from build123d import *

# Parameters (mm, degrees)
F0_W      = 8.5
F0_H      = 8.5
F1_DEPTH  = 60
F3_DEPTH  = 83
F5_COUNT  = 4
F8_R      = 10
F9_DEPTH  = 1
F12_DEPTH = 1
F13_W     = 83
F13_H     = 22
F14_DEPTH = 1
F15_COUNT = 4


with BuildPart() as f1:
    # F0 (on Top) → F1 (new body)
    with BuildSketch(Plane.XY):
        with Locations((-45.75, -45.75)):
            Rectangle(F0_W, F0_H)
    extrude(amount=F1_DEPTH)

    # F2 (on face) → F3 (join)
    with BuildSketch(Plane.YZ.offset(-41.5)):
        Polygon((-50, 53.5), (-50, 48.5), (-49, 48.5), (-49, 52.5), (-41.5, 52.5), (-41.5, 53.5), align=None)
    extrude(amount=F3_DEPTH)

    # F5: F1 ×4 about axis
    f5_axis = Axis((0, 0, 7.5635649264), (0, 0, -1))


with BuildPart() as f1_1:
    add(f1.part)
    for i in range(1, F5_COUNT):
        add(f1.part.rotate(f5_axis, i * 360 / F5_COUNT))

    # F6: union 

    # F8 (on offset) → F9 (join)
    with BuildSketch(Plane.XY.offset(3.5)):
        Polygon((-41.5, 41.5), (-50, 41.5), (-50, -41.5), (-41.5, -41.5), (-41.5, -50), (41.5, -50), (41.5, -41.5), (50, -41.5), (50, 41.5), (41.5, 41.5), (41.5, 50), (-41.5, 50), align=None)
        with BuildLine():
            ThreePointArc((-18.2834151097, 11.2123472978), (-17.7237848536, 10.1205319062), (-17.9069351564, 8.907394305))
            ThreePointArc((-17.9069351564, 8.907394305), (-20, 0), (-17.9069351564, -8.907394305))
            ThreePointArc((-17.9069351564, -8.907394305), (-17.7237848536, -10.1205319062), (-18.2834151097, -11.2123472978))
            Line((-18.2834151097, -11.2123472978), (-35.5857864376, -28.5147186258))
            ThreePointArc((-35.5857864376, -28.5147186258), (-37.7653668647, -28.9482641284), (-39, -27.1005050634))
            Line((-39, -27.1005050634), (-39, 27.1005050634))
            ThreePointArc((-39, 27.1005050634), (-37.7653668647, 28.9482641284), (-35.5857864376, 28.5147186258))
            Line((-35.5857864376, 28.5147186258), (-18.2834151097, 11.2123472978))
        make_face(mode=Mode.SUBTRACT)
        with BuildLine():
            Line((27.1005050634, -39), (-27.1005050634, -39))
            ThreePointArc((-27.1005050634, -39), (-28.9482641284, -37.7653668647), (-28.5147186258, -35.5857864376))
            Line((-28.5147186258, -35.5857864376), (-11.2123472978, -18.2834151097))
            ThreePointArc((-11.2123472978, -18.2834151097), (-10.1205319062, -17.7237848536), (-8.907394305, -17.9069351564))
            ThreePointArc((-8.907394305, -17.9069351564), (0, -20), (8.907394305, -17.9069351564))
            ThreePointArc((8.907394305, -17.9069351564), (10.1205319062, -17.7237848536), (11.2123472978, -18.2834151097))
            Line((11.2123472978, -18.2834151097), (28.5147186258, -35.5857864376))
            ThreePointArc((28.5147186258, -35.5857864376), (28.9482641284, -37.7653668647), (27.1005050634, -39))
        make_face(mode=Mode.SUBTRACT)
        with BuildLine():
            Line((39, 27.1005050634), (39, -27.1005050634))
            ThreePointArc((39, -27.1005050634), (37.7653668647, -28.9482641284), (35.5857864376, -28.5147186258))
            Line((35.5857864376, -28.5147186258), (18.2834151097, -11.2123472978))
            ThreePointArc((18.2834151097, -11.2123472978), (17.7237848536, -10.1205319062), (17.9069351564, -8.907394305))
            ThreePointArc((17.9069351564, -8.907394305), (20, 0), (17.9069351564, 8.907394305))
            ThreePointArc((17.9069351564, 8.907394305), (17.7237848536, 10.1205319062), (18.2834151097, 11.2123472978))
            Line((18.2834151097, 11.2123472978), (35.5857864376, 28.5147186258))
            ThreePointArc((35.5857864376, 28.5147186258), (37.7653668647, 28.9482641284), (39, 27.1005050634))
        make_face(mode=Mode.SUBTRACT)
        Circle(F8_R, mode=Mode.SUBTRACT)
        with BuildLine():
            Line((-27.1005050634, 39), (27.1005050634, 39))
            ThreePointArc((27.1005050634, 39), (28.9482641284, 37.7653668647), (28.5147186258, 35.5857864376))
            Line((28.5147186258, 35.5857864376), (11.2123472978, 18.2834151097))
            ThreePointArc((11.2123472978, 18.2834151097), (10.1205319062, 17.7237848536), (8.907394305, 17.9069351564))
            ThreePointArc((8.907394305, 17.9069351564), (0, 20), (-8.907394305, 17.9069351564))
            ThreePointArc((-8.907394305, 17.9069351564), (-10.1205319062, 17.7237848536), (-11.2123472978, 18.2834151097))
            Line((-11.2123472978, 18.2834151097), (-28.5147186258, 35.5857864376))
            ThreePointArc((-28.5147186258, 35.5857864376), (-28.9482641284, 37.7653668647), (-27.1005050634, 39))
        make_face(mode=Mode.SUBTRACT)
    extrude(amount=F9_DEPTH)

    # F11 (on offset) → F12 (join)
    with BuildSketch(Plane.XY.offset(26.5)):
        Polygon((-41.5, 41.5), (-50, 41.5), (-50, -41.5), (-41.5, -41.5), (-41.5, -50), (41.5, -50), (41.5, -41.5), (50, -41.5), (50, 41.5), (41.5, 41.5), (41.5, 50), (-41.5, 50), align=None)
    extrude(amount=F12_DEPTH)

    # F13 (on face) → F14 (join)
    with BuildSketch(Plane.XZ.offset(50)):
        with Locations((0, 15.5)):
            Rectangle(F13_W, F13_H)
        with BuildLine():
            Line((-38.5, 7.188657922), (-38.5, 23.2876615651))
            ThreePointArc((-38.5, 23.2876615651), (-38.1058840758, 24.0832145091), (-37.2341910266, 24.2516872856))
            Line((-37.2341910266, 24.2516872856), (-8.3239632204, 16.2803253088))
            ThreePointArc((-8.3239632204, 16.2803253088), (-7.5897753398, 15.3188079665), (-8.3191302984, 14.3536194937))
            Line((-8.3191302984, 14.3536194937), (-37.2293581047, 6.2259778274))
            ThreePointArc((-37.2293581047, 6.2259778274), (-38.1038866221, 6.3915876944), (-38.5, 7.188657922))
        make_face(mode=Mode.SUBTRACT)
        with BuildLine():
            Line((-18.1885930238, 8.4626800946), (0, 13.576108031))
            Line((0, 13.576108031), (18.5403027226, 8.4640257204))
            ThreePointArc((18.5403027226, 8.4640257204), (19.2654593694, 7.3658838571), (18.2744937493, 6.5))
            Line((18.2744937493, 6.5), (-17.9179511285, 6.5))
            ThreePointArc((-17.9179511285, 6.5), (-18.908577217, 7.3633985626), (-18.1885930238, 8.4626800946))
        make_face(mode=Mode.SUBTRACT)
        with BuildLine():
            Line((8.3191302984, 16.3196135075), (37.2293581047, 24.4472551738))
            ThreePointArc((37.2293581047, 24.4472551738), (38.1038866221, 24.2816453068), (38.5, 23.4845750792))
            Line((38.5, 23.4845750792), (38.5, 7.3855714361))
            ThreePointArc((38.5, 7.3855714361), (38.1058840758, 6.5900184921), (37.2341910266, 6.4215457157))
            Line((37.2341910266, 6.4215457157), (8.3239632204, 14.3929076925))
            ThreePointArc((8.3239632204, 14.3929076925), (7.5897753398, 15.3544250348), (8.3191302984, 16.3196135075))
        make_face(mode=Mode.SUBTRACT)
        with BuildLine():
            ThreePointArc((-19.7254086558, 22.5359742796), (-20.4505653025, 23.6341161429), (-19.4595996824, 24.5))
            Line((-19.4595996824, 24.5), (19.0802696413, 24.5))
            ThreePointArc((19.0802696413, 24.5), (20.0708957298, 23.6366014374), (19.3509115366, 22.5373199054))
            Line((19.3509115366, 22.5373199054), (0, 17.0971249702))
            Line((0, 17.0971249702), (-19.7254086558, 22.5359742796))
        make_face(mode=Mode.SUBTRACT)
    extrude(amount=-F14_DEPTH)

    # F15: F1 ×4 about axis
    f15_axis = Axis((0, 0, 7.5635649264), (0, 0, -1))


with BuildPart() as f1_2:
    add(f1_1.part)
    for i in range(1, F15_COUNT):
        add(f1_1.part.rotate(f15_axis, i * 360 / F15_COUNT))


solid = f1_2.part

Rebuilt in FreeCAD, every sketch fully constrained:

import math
import FreeCAD as App
import Part
import Sketcher
from FreeCAD import Vector
Q = App.Units.Quantity


def add_polygon(sketch, points):
    """Adds a closed chain of lines whose ends are joined by coincident constraints."""
    first, n = sketch.GeometryCount, len(points)
    for a, b in zip(points, points[1:] + points[:1]):
        sketch.addGeometry(Part.LineSegment(App.Vector(*a, 0), App.Vector(*b, 0)), False)
    for i in range(n):
        sketch.addConstraint(Sketcher.Constraint("Coincident", first + i, 2, first + (i + 1) % n, 1))

doc = App.newDocument("Part")
body = doc.addObject("PartDesign::Body", "Body")

sketch1 = doc.addObject("Sketcher::SketchObject", "Sketch")
body.addObject(sketch1)
sketch1.AttachmentSupport = (doc.XY_Plane, [""])
sketch1.MapMode = "FlatFace"
add_polygon(sketch1, [(-50, -41.5), (-50, -50), (-41.5, -50), (-41.5, -41.5)])
sketch1.addConstraint(Sketcher.Constraint("Vertical", 0))
sketch1.addConstraint(Sketcher.Constraint("Horizontal", 1))
sketch1.addConstraint(Sketcher.Constraint("Vertical", 2))
sketch1.addConstraint(Sketcher.Constraint("Horizontal", 3))
sketch1.addConstraint(Sketcher.Constraint("Equal", 3, 0))
sketch1.addConstraint(Sketcher.Constraint("DistanceX", 1, 1, 1, 2, Q("8.5 mm")))
sketch1.addConstraint(Sketcher.Constraint("DistanceX", 0, 2, -1, 1, Q("50 mm")))
sketch1.addConstraint(Sketcher.Constraint("DistanceY", 0, 2, -1, 1, Q("50 mm")))
pad1 = doc.addObject("PartDesign::Pad", "Pad")
body.addObject(pad1)
pad1.Profile = sketch1
pad1.Length = 60

sketch2 = doc.addObject("Sketcher::SketchObject", "Sketch001")
body.addObject(sketch2)
sketch2.AttachmentSupport = (doc.YZ_Plane, [""])
sketch2.MapMode = "FlatFace"
sketch2.AttachmentOffset = App.Placement(Vector(0, 0, -41.5), App.Rotation())
add_polygon(sketch2, [(-50, 53.5), (-50, 48.5), (-49, 48.5), (-49, 52.5), (-41.5, 52.5), (-41.5, 53.5)])
sketch2.addConstraint(Sketcher.Constraint("Vertical", 0))
sketch2.addConstraint(Sketcher.Constraint("Horizontal", 1))
sketch2.addConstraint(Sketcher.Constraint("Vertical", 2))
sketch2.addConstraint(Sketcher.Constraint("Horizontal", 3))
sketch2.addConstraint(Sketcher.Constraint("Vertical", 4))
sketch2.addConstraint(Sketcher.Constraint("Horizontal", 5))
sketch2.addConstraint(Sketcher.Constraint("Equal", 1, 4))
sketch2.addConstraint(Sketcher.Constraint("DistanceX", 1, 1, 1, 2, Q("1 mm")))
sketch2.addConstraint(Sketcher.Constraint("DistanceY", 0, 2, 0, 1, Q("5 mm")))
sketch2.addConstraint(Sketcher.Constraint("DistanceX", 3, 1, 3, 2, Q("7.5 mm")))
sketch2.addConstraint(Sketcher.Constraint("DistanceX", 0, 2, -1, 1, Q("50 mm")))
sketch2.addConstraint(Sketcher.Constraint("DistanceY", -1, 1, 0, 2, Q("48.5 mm")))
pad2 = doc.addObject("PartDesign::Pad", "Pad001")
body.addObject(pad2)
pad2.Profile = sketch2
pad2.Length = 83
body2 = doc.addObject("PartDesign::Body", "Body001")
doc.recompute()

body2.BaseFeature = body
doc.recompute()

body3 = doc.addObject("PartDesign::Body", "Body002")
body3.BaseFeature = body
body3.Placement = App.Placement(Vector(0, 0, 0), App.Rotation(Vector(0, 0, -1), 90))
boolean = doc.addObject("PartDesign::Boolean", "Boolean")
body2.addObject(boolean)
boolean.Type = "Fuse"
boolean.addObjects([body3])
doc.recompute()

body4 = doc.addObject("PartDesign::Body", "Body003")
body4.BaseFeature = body
body4.Placement = App.Placement(Vector(0, 0, 0), App.Rotation(Vector(0, 0, -1), 180))
boolean2 = doc.addObject("PartDesign::Boolean", "Boolean001")
body2.addObject(boolean2)
boolean2.Type = "Fuse"
boolean2.addObjects([body4])
doc.recompute()

body.Placement = App.Placement(Vector(0, 0, 0), App.Rotation(Vector(0, 0, -1), 270))
boolean3 = doc.addObject("PartDesign::Boolean", "Boolean002")
body2.addObject(boolean3)
boolean3.Type = "Fuse"
boolean3.addObjects([body])

sketch3 = doc.addObject("Sketcher::SketchObject", "Sketch002")
body2.addObject(sketch3)
sketch3.AttachmentSupport = (doc.getObject("XY_Plane001"), [""])
sketch3.MapMode = "FlatFace"
sketch3.AttachmentOffset = App.Placement(Vector(0, 0, 3.5), App.Rotation())
add_polygon(sketch3, [(-41.5, 41.5), (-50, 41.5), (-50, -41.5), (-41.5, -41.5), (-41.5, -50), (41.5, -50), (41.5, -41.5), (50, -41.5), (50, 41.5), (41.5, 41.5), (41.5, 50), (-41.5, 50)])
sketch3.addGeometry(Part.ArcOfCircle(Part.Circle(Vector(27.100505, -37, 0), Vector(0, 0, 1), 2), math.radians(-90), math.radians(45)), False)
sketch3.addGeometry(Part.LineSegment(Vector(27.100505, -39, 0), Vector(-27.100505, -39, 0)), False)
sketch3.addGeometry(Part.ArcOfCircle(Part.Circle(Vector(-27.100505, -37, 0), Vector(0, 0, 1), 2), math.radians(135), math.radians(270)), False)
sketch3.addGeometry(Part.LineSegment(Vector(-28.514719, -35.585786, 0), Vector(-11.212347, -18.283415, 0)), False)
sketch3.addGeometry(Part.ArcOfCircle(Part.Circle(Vector(-9.798134, -19.697629, 0), Vector(0, 0, 1), 2), math.radians(63.553005), math.radians(135)), False)
sketch3.addGeometry(Part.ArcOfCircle(Part.Circle(Vector(0, 0, 0), Vector(0, 0, 1), 20), math.radians(-116.446995), math.radians(-63.553005)), False)
sketch3.addGeometry(Part.ArcOfCircle(Part.Circle(Vector(9.798134, -19.697629, 0), Vector(0, 0, 1), 2), math.radians(45), math.radians(116.446995)), False)
sketch3.addGeometry(Part.LineSegment(Vector(11.212347, -18.283415, 0), Vector(28.514719, -35.585786, 0)), False)
sketch3.addGeometry(Part.LineSegment(Vector(-35.585786, 28.514719, 0), Vector(-18.283415, 11.212347, 0)), False)
sketch3.addGeometry(Part.ArcOfCircle(Part.Circle(Vector(-19.697629, 9.798134, 0), Vector(0, 0, 1), 2), math.radians(-26.446995), math.radians(45)), False)
sketch3.addGeometry(Part.ArcOfCircle(Part.Circle(Vector(0, 0, 0), Vector(0, 0, 1), 20), math.radians(153.553005), math.radians(206.446995)), False)
sketch3.addGeometry(Part.ArcOfCircle(Part.Circle(Vector(-19.697629, -9.798134, 0), Vector(0, 0, 1), 2), math.radians(-45), math.radians(26.446995)), False)
sketch3.addGeometry(Part.LineSegment(Vector(-18.283415, -11.212347, 0), Vector(-35.585786, -28.514719, 0)), False)
sketch3.addGeometry(Part.ArcOfCircle(Part.Circle(Vector(-37, -27.100505, 0), Vector(0, 0, 1), 2), math.radians(180), math.radians(315)), False)
sketch3.addGeometry(Part.LineSegment(Vector(-39, -27.100505, 0), Vector(-39, 27.100505, 0)), False)
sketch3.addGeometry(Part.ArcOfCircle(Part.Circle(Vector(-37, 27.100505, 0), Vector(0, 0, 1), 2), math.radians(45), math.radians(180)), False)
sketch3.addGeometry(Part.Circle(Vector(0, 0, 0), Vector(0, 0, 1), 10), False)
sketch3.addGeometry(Part.ArcOfCircle(Part.Circle(Vector(37, 27.100505, 0), Vector(0, 0, 1), 2), math.radians(0), math.radians(135)), False)
sketch3.addGeometry(Part.LineSegment(Vector(39, 27.100505, 0), Vector(39, -27.100505, 0)), False)
sketch3.addGeometry(Part.ArcOfCircle(Part.Circle(Vector(37, -27.100505, 0), Vector(0, 0, 1), 2), math.radians(-135), math.radians(0)), False)
sketch3.addGeometry(Part.LineSegment(Vector(35.585786, -28.514719, 0), Vector(18.283415, -11.212347, 0)), False)
sketch3.addGeometry(Part.ArcOfCircle(Part.Circle(Vector(19.697629, -9.798134, 0), Vector(0, 0, 1), 2), math.radians(153.553005), math.radians(225)), False)
sketch3.addGeometry(Part.ArcOfCircle(Part.Circle(Vector(0, 0, 0), Vector(0, 0, 1), 20), math.radians(-26.446995), math.radians(26.446995)), False)
sketch3.addGeometry(Part.ArcOfCircle(Part.Circle(Vector(19.697629, 9.798134, 0), Vector(0, 0, 1), 2), math.radians(135), math.radians(206.446995)), False)
sketch3.addGeometry(Part.LineSegment(Vector(18.283415, 11.212347, 0), Vector(35.585786, 28.514719, 0)), False)
sketch3.addGeometry(Part.ArcOfCircle(Part.Circle(Vector(-27.100505, 37, 0), Vector(0, 0, 1), 2), math.radians(90), math.radians(225)), False)
sketch3.addGeometry(Part.LineSegment(Vector(-27.100505, 39, 0), Vector(27.100505, 39, 0)), False)
sketch3.addGeometry(Part.ArcOfCircle(Part.Circle(Vector(27.100505, 37, 0), Vector(0, 0, 1), 2), math.radians(-45), math.radians(90)), False)
sketch3.addGeometry(Part.LineSegment(Vector(28.514719, 35.585786, 0), Vector(11.212347, 18.283415, 0)), False)
sketch3.addGeometry(Part.ArcOfCircle(Part.Circle(Vector(9.798134, 19.697629, 0), Vector(0, 0, 1), 2), math.radians(-116.446995), math.radians(-45)), False)
sketch3.addGeometry(Part.ArcOfCircle(Part.Circle(Vector(0, 0, 0), Vector(0, 0, 1), 20), math.radians(63.553005), math.radians(116.446995)), False)
sketch3.addGeometry(Part.ArcOfCircle(Part.Circle(Vector(-9.798134, 19.697629, 0), Vector(0, 0, 1), 2), math.radians(-135), math.radians(-63.553005)), False)
sketch3.addGeometry(Part.LineSegment(Vector(-11.212347, 18.283415, 0), Vector(-28.514719, 35.585786, 0)), False)
sketch3.addConstraint(Sketcher.Constraint("Tangent", 12, 1, 13, 1))
sketch3.addConstraint(Sketcher.Constraint("Tangent", 13, 2, 14, 2))
sketch3.addConstraint(Sketcher.Constraint("Tangent", 14, 1, 15, 1))
sketch3.addConstraint(Sketcher.Constraint("Tangent", 15, 2, 16, 2))
sketch3.addConstraint(Sketcher.Constraint("Tangent", 16, 1, 17, 1))
sketch3.addConstraint(Sketcher.Constraint("Tangent", 17, 2, 18, 2))
sketch3.addConstraint(Sketcher.Constraint("Tangent", 18, 1, 19, 1))
sketch3.addConstraint(Sketcher.Constraint("Tangent", 19, 2, 12, 2))
sketch3.addConstraint(Sketcher.Constraint("Tangent", 20, 2, 21, 2))
sketch3.addConstraint(Sketcher.Constraint("Tangent", 21, 1, 22, 1))
sketch3.addConstraint(Sketcher.Constraint("Tangent", 22, 2, 23, 2))
sketch3.addConstraint(Sketcher.Constraint("Tangent", 23, 1, 24, 1))
sketch3.addConstraint(Sketcher.Constraint("Tangent", 24, 2, 25, 2))
sketch3.addConstraint(Sketcher.Constraint("Tangent", 25, 1, 26, 1))
sketch3.addConstraint(Sketcher.Constraint("Tangent", 26, 2, 27, 2))
sketch3.addConstraint(Sketcher.Constraint("Tangent", 27, 1, 20, 1))
sketch3.addConstraint(Sketcher.Constraint("Tangent", 29, 1, 30, 1))
sketch3.addConstraint(Sketcher.Constraint("Tangent", 30, 2, 31, 2))
sketch3.addConstraint(Sketcher.Constraint("Tangent", 31, 1, 32, 1))
sketch3.addConstraint(Sketcher.Constraint("Tangent", 32, 2, 33, 2))
sketch3.addConstraint(Sketcher.Constraint("Tangent", 33, 1, 34, 1))
sketch3.addConstraint(Sketcher.Constraint("Tangent", 34, 2, 35, 2))
sketch3.addConstraint(Sketcher.Constraint("Tangent", 35, 1, 36, 1))
sketch3.addConstraint(Sketcher.Constraint("Tangent", 36, 2, 29, 2))
sketch3.addConstraint(Sketcher.Constraint("Tangent", 37, 1, 38, 1))
sketch3.addConstraint(Sketcher.Constraint("Tangent", 38, 2, 39, 2))
sketch3.addConstraint(Sketcher.Constraint("Tangent", 39, 1, 40, 1))
sketch3.addConstraint(Sketcher.Constraint("Tangent", 40, 2, 41, 2))
sketch3.addConstraint(Sketcher.Constraint("Tangent", 41, 1, 42, 1))
sketch3.addConstraint(Sketcher.Constraint("Tangent", 42, 2, 43, 2))
sketch3.addConstraint(Sketcher.Constraint("Tangent", 43, 1, 44, 1))
sketch3.addConstraint(Sketcher.Constraint("Tangent", 44, 2, 37, 2))
sketch3.addConstraint(Sketcher.Constraint("Horizontal", 0))
sketch3.addConstraint(Sketcher.Constraint("Vertical", 1))
sketch3.addConstraint(Sketcher.Constraint("Horizontal", 2))
sketch3.addConstraint(Sketcher.Constraint("Vertical", 3))
sketch3.addConstraint(Sketcher.Constraint("Horizontal", 4))
sketch3.addConstraint(Sketcher.Constraint("Vertical", 5))
sketch3.addConstraint(Sketcher.Constraint("Horizontal", 6))
sketch3.addConstraint(Sketcher.Constraint("Vertical", 7))
sketch3.addConstraint(Sketcher.Constraint("Horizontal", 8))
sketch3.addConstraint(Sketcher.Constraint("Vertical", 9))
sketch3.addConstraint(Sketcher.Constraint("Horizontal", 10))
sketch3.addConstraint(Sketcher.Constraint("Vertical", 11))
sketch3.addConstraint(Sketcher.Constraint("Horizontal", 13))
sketch3.addConstraint(Sketcher.Constraint("Vertical", 26))
sketch3.addConstraint(Sketcher.Constraint("Vertical", 30))
sketch3.addConstraint(Sketcher.Constraint("Horizontal", 38))
sketch3.addConstraint(Sketcher.Constraint("Coincident", 17, 3, -1, 1))
sketch3.addConstraint(Sketcher.Constraint("Coincident", 22, 3, -1, 1))
sketch3.addConstraint(Sketcher.Constraint("Coincident", 28, 3, -1, 1))
sketch3.addConstraint(Sketcher.Constraint("Coincident", 34, 3, -1, 1))
sketch3.addConstraint(Sketcher.Constraint("Coincident", 42, 3, -1, 1))
sketch3.addConstraint(Sketcher.Constraint("Equal", 12, 14))
sketch3.addConstraint(Sketcher.Constraint("Equal", 14, 16))
sketch3.addConstraint(Sketcher.Constraint("Equal", 16, 18))
sketch3.addConstraint(Sketcher.Constraint("Equal", 18, 21))
sketch3.addConstraint(Sketcher.Constraint("Equal", 17, 22))
sketch3.addConstraint(Sketcher.Constraint("Equal", 21, 23))
sketch3.addConstraint(Sketcher.Constraint("Equal", 23, 25))
sketch3.addConstraint(Sketcher.Constraint("Equal", 25, 27))
sketch3.addConstraint(Sketcher.Constraint("Equal", 27, 29))
sketch3.addConstraint(Sketcher.Constraint("Equal", 29, 31))
sketch3.addConstraint(Sketcher.Constraint("Equal", 31, 33))
sketch3.addConstraint(Sketcher.Constraint("Equal", 22, 34))
sketch3.addConstraint(Sketcher.Constraint("Equal", 33, 35))
sketch3.addConstraint(Sketcher.Constraint("Equal", 35, 37))
sketch3.addConstraint(Sketcher.Constraint("Equal", 37, 39))
sketch3.addConstraint(Sketcher.Constraint("Equal", 39, 41))
sketch3.addConstraint(Sketcher.Constraint("Equal", 34, 42))
sketch3.addConstraint(Sketcher.Constraint("Equal", 41, 43))
sketch3.addConstraint(Sketcher.Constraint("Symmetric", 25, 3, 29, 3, -1, 1))
sketch3.addConstraint(Sketcher.Constraint("Symmetric", 12, 3, 37, 3, -1, 1))
sketch3.addConstraint(Sketcher.Constraint("Symmetric", 0, 2, 6, 2, -1, 1))
sketch3.addConstraint(Sketcher.Constraint("Symmetric", 2, 2, 8, 2, -1, 1))
sketch3.addConstraint(Sketcher.Constraint("Symmetric", 4, 2, 10, 2, -1, 1))
sketch3.addConstraint(Sketcher.Constraint("Symmetric", 27, 1, 31, 1, -1, 1))
sketch3.addConstraint(Sketcher.Constraint("Symmetric", 14, 1, 39, 1, -1, 1))
sketch3.addConstraint(Sketcher.Constraint("Symmetric", 2, 2, 5, 2, -2))
sketch3.addConstraint(Sketcher.Constraint("Symmetric", 15, 2, 18, 1, -2))
sketch3.addConstraint(Sketcher.Constraint("Symmetric", 24, 2, 31, 1, -2))
sketch3.addConstraint(Sketcher.Constraint("Perpendicular", 15, 19))
sketch3.addConstraint(Sketcher.Constraint("Parallel", 19, 20))
sketch3.addConstraint(Sketcher.Constraint("Perpendicular", 32, 36))
sketch3.addConstraint(Sketcher.Constraint("Perpendicular", 40, 44))
sketch3.addConstraint(Sketcher.Constraint("Equal", 10, 1))
sketch3.addConstraint(Sketcher.Constraint("Equal", 8, 3))
sketch3.addConstraint(Sketcher.Constraint("Equal", 38, 26))
sketch3.addConstraint(Sketcher.Constraint("Equal", 19, 20))
sketch3.addConstraint(Sketcher.Constraint("Diameter", 28, Q("20 mm")))
sketch3.addConstraint(Sketcher.Constraint("Radius", 12, Q("2 mm")))
sketch3.addConstraint(Sketcher.Constraint("Radius", 17, Q("20 mm")))
sketch3.addConstraint(Sketcher.Constraint("DistanceX", 4, 1, 4, 2, Q("83 mm")))
sketch3.addConstraint(Sketcher.Constraint("DistanceX", 0, 2, 0, 1, Q("8.5 mm")))
sketch3.addConstraint(Sketcher.Constraint("DistanceY", 12, 3, -1, 1, Q("37 mm")))
sketch3.addConstraint(Sketcher.Constraint("DistanceX", 13, 2, 13, 1, Q("54.20101 mm")))
pad3 = doc.addObject("PartDesign::Pad", "Pad002")
body2.addObject(pad3)
pad3.Profile = sketch3
pad3.Length = 1

sketch4 = doc.addObject("Sketcher::SketchObject", "Sketch003")
body2.addObject(sketch4)
sketch4.AttachmentSupport = (doc.getObject("XY_Plane001"), [""])
sketch4.MapMode = "FlatFace"
sketch4.AttachmentOffset = App.Placement(Vector(0, 0, 26.5), App.Rotation())
add_polygon(sketch4, [(-41.5, 41.5), (-50, 41.5), (-50, -41.5), (-41.5, -41.5), (-41.5, -50), (41.5, -50), (41.5, -41.5), (50, -41.5), (50, 41.5), (41.5, 41.5), (41.5, 50), (-41.5, 50)])
sketch4.addConstraint(Sketcher.Constraint("Horizontal", 0))
sketch4.addConstraint(Sketcher.Constraint("Vertical", 1))
sketch4.addConstraint(Sketcher.Constraint("Horizontal", 2))
sketch4.addConstraint(Sketcher.Constraint("Vertical", 3))
sketch4.addConstraint(Sketcher.Constraint("Horizontal", 4))
sketch4.addConstraint(Sketcher.Constraint("Vertical", 5))
sketch4.addConstraint(Sketcher.Constraint("Horizontal", 6))
sketch4.addConstraint(Sketcher.Constraint("Vertical", 7))
sketch4.addConstraint(Sketcher.Constraint("Horizontal", 8))
sketch4.addConstraint(Sketcher.Constraint("Vertical", 9))
sketch4.addConstraint(Sketcher.Constraint("Horizontal", 10))
sketch4.addConstraint(Sketcher.Constraint("Vertical", 11))
sketch4.addConstraint(Sketcher.Constraint("Symmetric", 0, 2, 6, 2, -1, 1))
sketch4.addConstraint(Sketcher.Constraint("Symmetric", 2, 2, 8, 2, -1, 1))
sketch4.addConstraint(Sketcher.Constraint("Symmetric", 4, 2, 10, 2, -1, 1))
sketch4.addConstraint(Sketcher.Constraint("Symmetric", 2, 2, 5, 2, -2))
sketch4.addConstraint(Sketcher.Constraint("Equal", 10, 1))
sketch4.addConstraint(Sketcher.Constraint("Equal", 8, 3))
sketch4.addConstraint(Sketcher.Constraint("DistanceX", 4, 1, 4, 2, Q("83 mm")))
sketch4.addConstraint(Sketcher.Constraint("DistanceX", 0, 2, 0, 1, Q("8.5 mm")))
pad4 = doc.addObject("PartDesign::Pad", "Pad003")
body2.addObject(pad4)
pad4.Profile = sketch4
pad4.Length = 1

sketch5 = doc.addObject("Sketcher::SketchObject", "Sketch004")
body2.addObject(sketch5)
sketch5.AttachmentSupport = (doc.getObject("XZ_Plane001"), [""])
sketch5.MapMode = "FlatFace"
sketch5.AttachmentOffset = App.Placement(Vector(0, 0, 50), App.Rotation())
add_polygon(sketch5, [(-41.5, 26.5), (-41.5, 4.5), (41.5, 4.5), (41.5, 26.5)])
sketch5.addGeometry(Part.ArcOfCircle(Part.Circle(Vector(-37.5, 7.188658, 0), Vector(0, 0, 1), 1), math.radians(180), math.radians(285.702467)), False)
sketch5.addGeometry(Part.LineSegment(Vector(-38.5, 7.188658, 0), Vector(-38.5, 23.287662, 0)), False)
sketch5.addGeometry(Part.ArcOfCircle(Part.Circle(Vector(-37.5, 23.287662, 0), Vector(0, 0, 1), 1), math.radians(74.584972), math.radians(180)), False)
sketch5.addGeometry(Part.LineSegment(Vector(-37.234191, 24.251687, 0), Vector(-8.323963, 16.280325, 0)), False)
sketch5.addGeometry(Part.ArcOfCircle(Part.Circle(Vector(-8.589772, 15.3163, 0), Vector(0, 0, 1), 1), math.radians(-74.297533), math.radians(74.584972)), False)
sketch5.addGeometry(Part.LineSegment(Vector(-8.31913, 14.353619, 0), Vector(-37.229358, 6.225978, 0)), False)
sketch5.addGeometry(Part.ArcOfCircle(Part.Circle(Vector(-17.917951, 7.5, 0), Vector(0, 0, 1), 1), math.radians(105.702467), math.radians(270)), False)
sketch5.addGeometry(Part.LineSegment(Vector(-18.188593, 8.46268, 0), Vector(0, 13.576108, 0)), False)
sketch5.addGeometry(Part.LineSegment(Vector(0, 13.576108, 0), Vector(18.540303, 8.464026, 0)), False)
sketch5.addGeometry(Part.ArcOfCircle(Part.Circle(Vector(18.274494, 7.5, 0), Vector(0, 0, 1), 1), math.radians(-90), math.radians(74.584972)), False)
sketch5.addGeometry(Part.LineSegment(Vector(18.274494, 6.5, 0), Vector(-17.917951, 6.5, 0)), False)
sketch5.addGeometry(Part.LineSegment(Vector(0, 17.097125, 0), Vector(-19.725409, 22.535974, 0)), False)
sketch5.addGeometry(Part.ArcOfCircle(Part.Circle(Vector(-19.4596, 23.5, 0), Vector(0, 0, 1), 1), math.radians(90), math.radians(254.584972)), False)
sketch5.addGeometry(Part.LineSegment(Vector(-19.4596, 24.5, 0), Vector(19.08027, 24.5, 0)), False)
sketch5.addGeometry(Part.ArcOfCircle(Part.Circle(Vector(19.08027, 23.5, 0), Vector(0, 0, 1), 1), math.radians(-74.297533), math.radians(90)), False)
sketch5.addGeometry(Part.LineSegment(Vector(19.350912, 22.53732, 0), Vector(0, 17.097125, 0)), False)
sketch5.addGeometry(Part.ArcOfCircle(Part.Circle(Vector(8.589772, 15.356933, 0), Vector(0, 0, 1), 1), math.radians(105.702467), math.radians(254.584972)), False)
sketch5.addGeometry(Part.LineSegment(Vector(8.31913, 16.319614, 0), Vector(37.229358, 24.447255, 0)), False)
sketch5.addGeometry(Part.ArcOfCircle(Part.Circle(Vector(37.5, 23.484575, 0), Vector(0, 0, 1), 1), math.radians(0), math.radians(105.702467)), False)
sketch5.addGeometry(Part.LineSegment(Vector(38.5, 23.484575, 0), Vector(38.5, 7.385571, 0)), False)
sketch5.addGeometry(Part.ArcOfCircle(Part.Circle(Vector(37.5, 7.385571, 0), Vector(0, 0, 1), 1), math.radians(-105.415028), math.radians(0)), False)
sketch5.addGeometry(Part.LineSegment(Vector(37.234191, 6.421546, 0), Vector(8.323963, 14.392908, 0)), False)
sketch5.addConstraint(Sketcher.Constraint("Tangent", 4, 1, 5, 1))
sketch5.addConstraint(Sketcher.Constraint("Tangent", 5, 2, 6, 2))
sketch5.addConstraint(Sketcher.Constraint("Tangent", 6, 1, 7, 1))
sketch5.addConstraint(Sketcher.Constraint("Tangent", 7, 2, 8, 2))
sketch5.addConstraint(Sketcher.Constraint("Tangent", 8, 1, 9, 1))
sketch5.addConstraint(Sketcher.Constraint("Tangent", 9, 2, 4, 2))
sketch5.addConstraint(Sketcher.Constraint("Tangent", 10, 1, 11, 1))
sketch5.addConstraint(Sketcher.Constraint("Coincident", 11, 2, 12, 1))
sketch5.addConstraint(Sketcher.Constraint("Tangent", 12, 2, 13, 2))
sketch5.addConstraint(Sketcher.Constraint("Tangent", 13, 1, 14, 1))
sketch5.addConstraint(Sketcher.Constraint("Tangent", 14, 2, 10, 2))
sketch5.addConstraint(Sketcher.Constraint("Tangent", 15, 2, 16, 2))
sketch5.addConstraint(Sketcher.Constraint("Tangent", 16, 1, 17, 1))
sketch5.addConstraint(Sketcher.Constraint("Tangent", 17, 2, 18, 2))
sketch5.addConstraint(Sketcher.Constraint("Tangent", 18, 1, 19, 1))
sketch5.addConstraint(Sketcher.Constraint("Coincident", 19, 2, 15, 1))
sketch5.addConstraint(Sketcher.Constraint("Tangent", 20, 1, 21, 1))
sketch5.addConstraint(Sketcher.Constraint("Tangent", 21, 2, 22, 2))
sketch5.addConstraint(Sketcher.Constraint("Tangent", 22, 1, 23, 1))
sketch5.addConstraint(Sketcher.Constraint("Tangent", 23, 2, 24, 2))
sketch5.addConstraint(Sketcher.Constraint("Tangent", 24, 1, 25, 1))
sketch5.addConstraint(Sketcher.Constraint("Tangent", 25, 2, 20, 2))
sketch5.addConstraint(Sketcher.Constraint("Vertical", 0))
sketch5.addConstraint(Sketcher.Constraint("Horizontal", 1))
sketch5.addConstraint(Sketcher.Constraint("Vertical", 2))
sketch5.addConstraint(Sketcher.Constraint("Horizontal", 3))
sketch5.addConstraint(Sketcher.Constraint("Vertical", 5))
sketch5.addConstraint(Sketcher.Constraint("Horizontal", 14))
sketch5.addConstraint(Sketcher.Constraint("Horizontal", 17))
sketch5.addConstraint(Sketcher.Constraint("Vertical", 23))
sketch5.addConstraint(Sketcher.Constraint("Equal", 4, 6))
sketch5.addConstraint(Sketcher.Constraint("Equal", 6, 8))
sketch5.addConstraint(Sketcher.Constraint("Equal", 8, 10))
sketch5.addConstraint(Sketcher.Constraint("Equal", 10, 13))
sketch5.addConstraint(Sketcher.Constraint("Equal", 13, 16))
sketch5.addConstraint(Sketcher.Constraint("Equal", 16, 18))
sketch5.addConstraint(Sketcher.Constraint("Equal", 18, 20))
sketch5.addConstraint(Sketcher.Constraint("Equal", 20, 22))
sketch5.addConstraint(Sketcher.Constraint("Equal", 22, 24))
sketch5.addConstraint(Sketcher.Constraint("PointOnObject", 11, 2, -2))
sketch5.addConstraint(Sketcher.Constraint("PointOnObject", 19, 2, -2))
sketch5.addConstraint(Sketcher.Constraint("Parallel", 9, 11))
sketch5.addConstraint(Sketcher.Constraint("Parallel", 7, 12))
sketch5.addConstraint(Sketcher.Constraint("Parallel", 12, 15))
sketch5.addConstraint(Sketcher.Constraint("Parallel", 11, 19))
sketch5.addConstraint(Sketcher.Constraint("Parallel", 19, 21))
sketch5.addConstraint(Sketcher.Constraint("Parallel", 15, 25))
sketch5.addConstraint(Sketcher.Constraint("Equal", 5, 23))
sketch5.addConstraint(Sketcher.Constraint("Radius", 4, Q("1 mm")))
sketch5.addConstraint(Sketcher.Constraint("DistanceX", 1, 1, 1, 2, Q("83 mm")))
sketch5.addConstraint(Sketcher.Constraint("DistanceY", 0, 2, 0, 1, Q("22 mm")))
sketch5.addConstraint(Sketcher.Constraint("DistanceY", 10, 3, 16, 3, Q("16 mm")))
sketch5.addConstraint(Sketcher.Constraint("DistanceX", 0, 2, 4, 3, Q("4 mm")))
sketch5.addConstraint(Sketcher.Constraint("DistanceY", 0, 2, 10, 3, Q("3 mm")))
sketch5.addConstraint(Sketcher.Constraint("DistanceX", 24, 3, 1, 2, Q("4 mm")))
sketch5.addConstraint(Sketcher.Constraint("DistanceX", 4, 3, -1, 1, Q("37.5 mm")))
sketch5.addConstraint(Sketcher.Constraint("DistanceY", -1, 1, 10, 3, Q("7.5 mm")))
sketch5.addConstraint(Sketcher.Constraint("DistanceX", 17, 1, 17, 2, Q("38.539869 mm")))
sketch5.addConstraint(Sketcher.Constraint("DistanceY", -1, 1, 8, 3, Q("15.3163 mm")))
sketch5.addConstraint(Sketcher.Constraint("DistanceX", 16, 3, -1, 1, Q("19.4596 mm")))
sketch5.addConstraint(Sketcher.Constraint("DistanceY", 7, 2, 19, 2, Q("0.8168 mm")))
sketch5.addConstraint(Sketcher.Constraint("DistanceY", 11, 2, 25, 2, Q("0.8168 mm")))
sketch5.addConstraint(Sketcher.Constraint("Distance", 9, Q("30.030981 mm")))
sketch5.addConstraint(Sketcher.Constraint("DistanceX", 14, 2, 14, 1, Q("36.192445 mm")))
pad5 = doc.addObject("PartDesign::Pad", "Pad004")
body2.addObject(pad5)
pad5.Profile = sketch5
pad5.Length = 1
pad5.Reversed = True
body5 = doc.addObject("PartDesign::Body", "Body004")
doc.recompute()

body5.BaseFeature = body2
doc.recompute()

body6 = doc.addObject("PartDesign::Body", "Body005")
body6.BaseFeature = body2
body6.Placement = App.Placement(Vector(0, 0, 0), App.Rotation(Vector(0, 0, -1), 90))
boolean4 = doc.addObject("PartDesign::Boolean", "Boolean003")
body5.addObject(boolean4)
boolean4.Type = "Fuse"
boolean4.addObjects([body6])
doc.recompute()

body7 = doc.addObject("PartDesign::Body", "Body006")
body7.BaseFeature = body2
body7.Placement = App.Placement(Vector(0, 0, 0), App.Rotation(Vector(0, 0, -1), 180))
boolean5 = doc.addObject("PartDesign::Boolean", "Boolean004")
body5.addObject(boolean5)
boolean5.Type = "Fuse"
boolean5.addObjects([body7])
doc.recompute()

body2.Placement = App.Placement(Vector(0, 0, 0), App.Rotation(Vector(0, 0, -1), 270))
boolean6 = doc.addObject("PartDesign::Boolean", "Boolean005")
body5.addObject(boolean6)
boolean6.Type = "Fuse"
boolean6.addObjects([body2])

doc.recompute()
